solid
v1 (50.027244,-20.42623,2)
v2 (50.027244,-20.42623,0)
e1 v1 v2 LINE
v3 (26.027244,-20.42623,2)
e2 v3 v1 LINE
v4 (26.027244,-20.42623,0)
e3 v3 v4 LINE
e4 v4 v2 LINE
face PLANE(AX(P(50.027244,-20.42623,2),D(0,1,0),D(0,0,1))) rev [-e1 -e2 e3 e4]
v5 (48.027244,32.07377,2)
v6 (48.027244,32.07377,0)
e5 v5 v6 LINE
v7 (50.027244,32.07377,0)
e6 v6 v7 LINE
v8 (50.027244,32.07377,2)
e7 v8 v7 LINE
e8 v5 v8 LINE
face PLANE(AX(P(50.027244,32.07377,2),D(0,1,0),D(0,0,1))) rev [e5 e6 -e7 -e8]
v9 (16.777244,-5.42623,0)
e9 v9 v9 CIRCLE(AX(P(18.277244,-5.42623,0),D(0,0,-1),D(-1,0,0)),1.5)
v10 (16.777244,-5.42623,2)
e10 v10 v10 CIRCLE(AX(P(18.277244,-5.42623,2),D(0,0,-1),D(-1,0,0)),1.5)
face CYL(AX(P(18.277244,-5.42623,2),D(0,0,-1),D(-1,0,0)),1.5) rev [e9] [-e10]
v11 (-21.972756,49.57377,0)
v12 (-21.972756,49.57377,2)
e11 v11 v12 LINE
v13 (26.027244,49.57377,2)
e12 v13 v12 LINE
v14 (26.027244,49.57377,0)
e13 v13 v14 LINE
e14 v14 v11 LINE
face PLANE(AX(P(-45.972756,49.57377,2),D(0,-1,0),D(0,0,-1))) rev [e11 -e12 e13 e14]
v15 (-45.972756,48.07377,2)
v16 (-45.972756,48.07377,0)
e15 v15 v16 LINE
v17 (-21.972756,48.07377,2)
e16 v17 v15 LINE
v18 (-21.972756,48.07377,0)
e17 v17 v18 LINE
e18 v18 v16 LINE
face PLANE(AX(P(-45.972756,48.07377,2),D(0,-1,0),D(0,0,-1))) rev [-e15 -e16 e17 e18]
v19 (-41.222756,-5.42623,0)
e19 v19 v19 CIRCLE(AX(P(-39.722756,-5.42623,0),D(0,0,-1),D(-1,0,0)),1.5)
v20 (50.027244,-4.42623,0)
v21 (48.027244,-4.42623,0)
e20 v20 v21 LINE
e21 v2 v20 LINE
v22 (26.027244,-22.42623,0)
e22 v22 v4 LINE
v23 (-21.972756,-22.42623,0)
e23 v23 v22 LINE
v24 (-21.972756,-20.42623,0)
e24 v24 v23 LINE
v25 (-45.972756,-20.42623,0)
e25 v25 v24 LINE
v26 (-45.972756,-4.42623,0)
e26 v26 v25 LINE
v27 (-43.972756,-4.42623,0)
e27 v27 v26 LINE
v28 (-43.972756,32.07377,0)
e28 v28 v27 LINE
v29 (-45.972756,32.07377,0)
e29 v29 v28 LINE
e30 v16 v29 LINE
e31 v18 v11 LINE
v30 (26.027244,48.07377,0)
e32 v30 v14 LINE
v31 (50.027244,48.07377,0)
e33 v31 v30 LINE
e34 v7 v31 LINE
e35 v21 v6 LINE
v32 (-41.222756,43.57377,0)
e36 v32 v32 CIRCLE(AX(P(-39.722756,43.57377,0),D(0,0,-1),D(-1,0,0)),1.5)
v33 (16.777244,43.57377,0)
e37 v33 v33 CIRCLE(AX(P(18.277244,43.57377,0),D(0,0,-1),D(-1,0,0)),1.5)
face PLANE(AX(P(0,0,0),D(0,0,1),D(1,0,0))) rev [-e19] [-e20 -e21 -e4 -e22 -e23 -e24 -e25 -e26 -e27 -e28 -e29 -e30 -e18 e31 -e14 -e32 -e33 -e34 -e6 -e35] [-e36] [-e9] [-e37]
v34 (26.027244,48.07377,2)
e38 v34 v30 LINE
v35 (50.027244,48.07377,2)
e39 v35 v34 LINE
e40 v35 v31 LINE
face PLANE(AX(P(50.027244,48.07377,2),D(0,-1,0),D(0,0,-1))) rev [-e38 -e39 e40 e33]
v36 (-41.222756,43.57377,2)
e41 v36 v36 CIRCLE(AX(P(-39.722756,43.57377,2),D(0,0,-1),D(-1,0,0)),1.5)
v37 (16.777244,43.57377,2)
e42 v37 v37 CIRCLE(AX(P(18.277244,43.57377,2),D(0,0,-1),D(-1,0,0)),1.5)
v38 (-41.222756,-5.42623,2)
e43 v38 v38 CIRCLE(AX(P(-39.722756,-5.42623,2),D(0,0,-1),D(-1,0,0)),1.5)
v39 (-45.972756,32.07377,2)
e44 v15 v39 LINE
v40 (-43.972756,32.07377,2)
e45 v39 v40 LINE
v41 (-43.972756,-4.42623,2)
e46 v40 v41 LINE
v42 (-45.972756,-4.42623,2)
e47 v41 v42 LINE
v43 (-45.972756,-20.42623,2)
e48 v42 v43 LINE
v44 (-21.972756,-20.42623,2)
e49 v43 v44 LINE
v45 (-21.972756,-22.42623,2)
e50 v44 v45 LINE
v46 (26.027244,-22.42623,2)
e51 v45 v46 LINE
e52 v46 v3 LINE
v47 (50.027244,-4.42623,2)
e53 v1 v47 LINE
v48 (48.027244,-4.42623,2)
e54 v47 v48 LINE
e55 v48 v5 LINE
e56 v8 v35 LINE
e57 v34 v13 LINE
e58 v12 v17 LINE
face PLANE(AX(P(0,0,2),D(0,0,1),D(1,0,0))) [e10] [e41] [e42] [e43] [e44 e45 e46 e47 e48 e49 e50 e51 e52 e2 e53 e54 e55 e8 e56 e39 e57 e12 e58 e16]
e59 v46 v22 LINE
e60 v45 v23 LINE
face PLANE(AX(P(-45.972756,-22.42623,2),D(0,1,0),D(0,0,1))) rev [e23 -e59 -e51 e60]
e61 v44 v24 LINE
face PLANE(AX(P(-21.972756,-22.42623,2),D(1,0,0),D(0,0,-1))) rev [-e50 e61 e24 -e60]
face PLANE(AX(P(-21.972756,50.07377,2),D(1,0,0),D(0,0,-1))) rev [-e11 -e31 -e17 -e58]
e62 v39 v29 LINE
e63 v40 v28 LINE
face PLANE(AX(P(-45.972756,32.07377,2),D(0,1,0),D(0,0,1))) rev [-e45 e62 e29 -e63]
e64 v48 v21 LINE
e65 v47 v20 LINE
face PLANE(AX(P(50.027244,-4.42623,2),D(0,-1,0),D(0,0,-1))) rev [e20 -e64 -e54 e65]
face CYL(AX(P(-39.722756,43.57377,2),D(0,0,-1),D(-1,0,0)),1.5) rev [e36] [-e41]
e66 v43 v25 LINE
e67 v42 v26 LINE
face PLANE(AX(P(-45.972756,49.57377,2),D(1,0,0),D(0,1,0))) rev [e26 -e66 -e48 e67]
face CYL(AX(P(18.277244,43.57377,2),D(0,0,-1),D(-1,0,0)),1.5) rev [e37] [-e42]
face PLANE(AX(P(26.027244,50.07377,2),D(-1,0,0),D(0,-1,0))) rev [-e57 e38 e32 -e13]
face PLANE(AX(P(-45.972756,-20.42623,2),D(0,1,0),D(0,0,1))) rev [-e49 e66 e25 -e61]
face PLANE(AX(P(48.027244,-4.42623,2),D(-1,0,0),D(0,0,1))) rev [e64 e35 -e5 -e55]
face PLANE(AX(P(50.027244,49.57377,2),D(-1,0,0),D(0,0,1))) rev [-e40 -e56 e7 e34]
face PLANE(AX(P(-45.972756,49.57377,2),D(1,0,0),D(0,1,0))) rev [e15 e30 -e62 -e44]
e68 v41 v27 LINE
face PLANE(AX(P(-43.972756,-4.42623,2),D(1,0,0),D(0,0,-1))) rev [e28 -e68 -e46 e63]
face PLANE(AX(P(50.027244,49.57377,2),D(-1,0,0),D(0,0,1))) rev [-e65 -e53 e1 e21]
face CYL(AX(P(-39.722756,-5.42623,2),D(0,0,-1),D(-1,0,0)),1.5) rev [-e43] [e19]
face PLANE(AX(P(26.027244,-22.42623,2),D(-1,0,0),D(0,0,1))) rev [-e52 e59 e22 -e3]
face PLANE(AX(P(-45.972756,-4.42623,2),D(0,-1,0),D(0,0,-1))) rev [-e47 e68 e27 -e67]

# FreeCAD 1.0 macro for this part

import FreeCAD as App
import Part
import Sketcher
Q = App.Units.Quantity

doc = App.newDocument("Part")
body = doc.addObject("PartDesign::Body", "Body")

# Sketch on XY plane
sketch1 = body.newObject("Sketcher::SketchObject", "Sketch")
sketch1.AttachmentSupport = (doc.getObject("XY_Plane"), [""])
sketch1.MapMode = "FlatFace"
sketch1.addGeometry([
    Part.LineSegment(App.Vector(-46, 50, 0), App.Vector(-46, -22, 0)),
    Part.LineSegment(App.Vector(-46, -22, 0), App.Vector(50, -22, 0)),
    Part.LineSegment(App.Vector(50, -22, 0), App.Vector(50, 50, 0)),
    Part.LineSegment(App.Vector(50, 50, 0), App.Vector(-46, 50, 0)),
], False)
sketch1.addConstraint([
    Sketcher.Constraint("Coincident", 0, 2, 1, 1),
    Sketcher.Constraint("Coincident", 1, 2, 2, 1),
    Sketcher.Constraint("Coincident", 2, 2, 3, 1),
    Sketcher.Constraint("Coincident", 3, 2, 0, 1),
    Sketcher.Constraint("Vertical", 0),
    Sketcher.Constraint("Horizontal", 1),
    Sketcher.Constraint("Vertical", 2),
    Sketcher.Constraint("Horizontal", 3),
    Sketcher.Constraint("DistanceX", 1, 1, 1, 2, Q("96 mm")),
    Sketcher.Constraint("DistanceY", 0, 2, 0, 1, Q("72 mm")),
    Sketcher.Constraint("DistanceY", 0, 2, -1, 1, Q("22.42623 mm")),
    Sketcher.Constraint("DistanceX", 0, 2, -1, 1, Q("45.972756 mm")),
])
pad1 = body.newObject("PartDesign::Pad", "Pad")
pad1.Profile = sketch1
pad1.Length = 2

# Sketch on XY plane
sketch2 = body.newObject("Sketcher::SketchObject", "Sketch001")
sketch2.AttachmentSupport = (doc.getObject("XY_Plane"), [""])
sketch2.MapMode = "FlatFace"
sketch2.addGeometry([
    Part.Circle(App.Vector(18.3, -5.4, 0), App.Vector(0, 0, 1), 1.5),
    Part.Circle(App.Vector(18.3, 43.6, 0), App.Vector(0, 0, 1), 1.5),
    Part.Circle(App.Vector(-39.7, -5.4, 0), App.Vector(0, 0, 1), 1.5),
    Part.Circle(App.Vector(-39.7, 43.6, 0), App.Vector(0, 0, 1), 1.5),
], False)
sketch2.addConstraint([
    Sketcher.Constraint("Equal", 0, 1),
    Sketcher.Constraint("Equal", 1, 2),
    Sketcher.Constraint("Equal", 2, 3),
    Sketcher.Constraint("Horizontal", 0, 3, 2, 3),
    Sketcher.Constraint("Horizontal", 1, 3, 3, 3),
    Sketcher.Constraint("Vertical", 0, 3, 1, 3),
    Sketcher.Constraint("Vertical", 2, 3, 3, 3),
    Sketcher.Constraint("Diameter", 0, Q("3 mm")),
    Sketcher.Constraint("DistanceY", 0, 3, 1, 3, Q("49 mm")),
    Sketcher.Constraint("DistanceX", 2, 3, 0, 3, Q("58 mm")),
    Sketcher.Constraint("DistanceY", 0, 3, -1, 1, Q("5.42623 mm")),
    Sketcher.Constraint("DistanceX", -1, 1, 0, 3, Q("18.277244 mm")),
])
pocket1 = body.newObject("PartDesign::Pocket", "Pocket")
pocket1.Profile = sketch2
pocket1.Type = "ThroughAll"
pocket1.Reversed = True

# Sketch on XY plane
sketch3 = body.newObject("Sketcher::SketchObject", "Sketch002")
sketch3.AttachmentSupport = (doc.getObject("XY_Plane"), [""])
sketch3.MapMode = "FlatFace"
sketch3.addGeometry([
    Part.LineSegment(App.Vector(-22, -20.4, 0), App.Vector(-22, -22.4, 0)),  # 0
    Part.LineSegment(App.Vector(-22, -22.4, 0), App.Vector(-46, -22.4, 0)),  # 1
    Part.LineSegment(App.Vector(-46, -22.4, 0), App.Vector(-46, -20.4, 0)),  # 2
    Part.LineSegment(App.Vector(-46, -20.4, 0), App.Vector(-22, -20.4, 0)),  # 3
    Part.LineSegment(App.Vector(50, -20.4, 0), App.Vector(50, -22.4, 0)),  # 4
    Part.LineSegment(App.Vector(50, -22.4, 0), App.Vector(26, -22.4, 0)),  # 5
    Part.LineSegment(App.Vector(26, -22.4, 0), App.Vector(26, -20.4, 0)),  # 6
    Part.LineSegment(App.Vector(26, -20.4, 0), App.Vector(50, -20.4, 0)),  # 7
], False)
sketch3.addConstraint([
    Sketcher.Constraint("Coincident", 0, 2, 1, 1),
    Sketcher.Constraint("Coincident", 1, 2, 2, 1),
    Sketcher.Constraint("Coincident", 2, 2, 3, 1),
    Sketcher.Constraint("Coincident", 3, 2, 0, 1),
    Sketcher.Constraint("Coincident", 4, 2, 5, 1),
    Sketcher.Constraint("Coincident", 5, 2, 6, 1),
    Sketcher.Constraint("Coincident", 6, 2, 7, 1),
    Sketcher.Constraint("Coincident", 7, 2, 4, 1),
    Sketcher.Constraint("Vertical", 0),
    Sketcher.Constraint("Horizontal", 1),
    Sketcher.Constraint("Vertical", 2),
    Sketcher.Constraint("Horizontal", 3),
    Sketcher.Constraint("Vertical", 4),
    Sketcher.Constraint("Horizontal", 5),
    Sketcher.Constraint("Vertical", 6),
    Sketcher.Constraint("Horizontal", 7),
    Sketcher.Constraint("Horizontal", 1, 2, 4, 2),
    Sketcher.Constraint("Horizontal", 3, 2, 6, 2),
    Sketcher.Constraint("Equal", 3, 5),
    Sketcher.Constraint("DistanceX", 1, 2, 1, 1, Q("24 mm")),
    Sketcher.Constraint("DistanceY", 0, 2, 0, 1, Q("2 mm")),
    Sketcher.Constraint("DistanceX", 0, 2, 4, 2, Q("72 mm")),
    Sketcher.Constraint("DistanceY", 0, 2, -1, 1, Q("22.42623 mm")),
    Sketcher.Constraint("DistanceX", 0, 2, -1, 1, Q("21.972756 mm")),
])
pocket2 = body.newObject("PartDesign::Pocket", "Pocket001")
pocket2.Profile = sketch3
pocket2.Type = "ThroughAll"
pocket2.Reversed = True

# Sketch on XY plane
sketch4 = body.newObject("Sketcher::SketchObject", "Sketch003")
sketch4.AttachmentSupport = (doc.getObject("XY_Plane"), [""])
sketch4.MapMode = "FlatFace"
sketch4.addGeometry([
    Part.LineSegment(App.Vector(-22, 50.1, 0), App.Vector(-22, 48.1, 0)),  # 0
    Part.LineSegment(App.Vector(-22, 48.1, 0), App.Vector(-46, 48.1, 0)),  # 1
    Part.LineSegment(App.Vector(-46, 48.1, 0), App.Vector(-46, 50.1, 0)),  # 2
    Part.LineSegment(App.Vector(-46, 50.1, 0), App.Vector(-22, 50.1, 0)),  # 3
    Part.LineSegment(App.Vector(50, 50.1, 0), App.Vector(50, 48.1, 0)),  # 4
    Part.LineSegment(App.Vector(50, 48.1, 0), App.Vector(26, 48.1, 0)),  # 5
    Part.LineSegment(App.Vector(26, 48.1, 0), App.Vector(26, 50.1, 0)),  # 6
    Part.LineSegment(App.Vector(26, 50.1, 0), App.Vector(50, 50.1, 0)),  # 7
], False)
sketch4.addConstraint([
    Sketcher.Constraint("Coincident", 0, 2, 1, 1),
    Sketcher.Constraint("Coincident", 1, 2, 2, 1),
    Sketcher.Constraint("Coincident", 2, 2, 3, 1),
    Sketcher.Constraint("Coincident", 3, 2, 0, 1),
    Sketcher.Constraint("Coincident", 4, 2, 5, 1),
    Sketcher.Constraint("Coincident", 5, 2, 6, 1),
    Sketcher.Constraint("Coincident", 6, 2, 7, 1),
    Sketcher.Constraint("Coincident", 7, 2, 4, 1),
    Sketcher.Constraint("Vertical", 0),
    Sketcher.Constraint("Horizontal", 1),
    Sketcher.Constraint("Vertical", 2),
    Sketcher.Constraint("Horizontal", 3),
    Sketcher.Constraint("Vertical", 4),
    Sketcher.Constraint("Horizontal", 5),
    Sketcher.Constraint("Vertical", 6),
    Sketcher.Constraint("Horizontal", 7),
    Sketcher.Constraint("Horizontal", 1, 2, 4, 2),
    Sketcher.Constraint("Horizontal", 3, 2, 6, 2),
    Sketcher.Constraint("Equal", 3, 5),
    Sketcher.Constraint("DistanceX", 1, 2, 1, 1, Q("24 mm")),
    Sketcher.Constraint("DistanceY", 0, 2, 0, 1, Q("2 mm")),
    Sketcher.Constraint("DistanceX", 0, 2, 4, 2, Q("72 mm")),
    Sketcher.Constraint("DistanceY", -1, 1, 0, 2, Q("48.07377 mm")),
    Sketcher.Constraint("DistanceX", 0, 2, -1, 1, Q("21.972756 mm")),
])
pocket3 = body.newObject("PartDesign::Pocket", "Pocket002")
pocket3.Profile = sketch4
pocket3.Type = "ThroughAll"
pocket3.Reversed = True

# Sketch on XY plane
sketch5 = body.newObject("Sketcher::SketchObject", "Sketch004")
sketch5.AttachmentSupport = (doc.getObject("XY_Plane"), [""])
sketch5.MapMode = "FlatFace"
sketch5.addGeometry([
    Part.LineSegment(App.Vector(-44, 32.1, 0), App.Vector(-44, -4.4, 0)),
    Part.LineSegment(App.Vector(-44, -4.4, 0), App.Vector(-46, -4.4, 0)),
    Part.LineSegment(App.Vector(-46, -4.4, 0), App.Vector(-46, 32.1, 0)),
    Part.LineSegment(App.Vector(-46, 32.1, 0), App.Vector(-44, 32.1, 0)),
], False)
sketch5.addConstraint([
    Sketcher.Constraint("Coincident", 0, 2, 1, 1),
    Sketcher.Constraint("Coincident", 1, 2, 2, 1),
    Sketcher.Constraint("Coincident", 2, 2, 3, 1),
    Sketcher.Constraint("Coincident", 3, 2, 0, 1),
    Sketcher.Constraint("Vertical", 0),
    Sketcher.Constraint("Horizontal", 1),
    Sketcher.Constraint("Vertical", 2),
    Sketcher.Constraint("Horizontal", 3),
    Sketcher.Constraint("DistanceX", 1, 2, 1, 1, Q("2 mm")),
    Sketcher.Constraint("DistanceY", 0, 2, 0, 1, Q("36.5 mm")),
    Sketcher.Constraint("DistanceY", 0, 2, -1, 1, Q("4.42623 mm")),
    Sketcher.Constraint("DistanceX", 0, 2, -1, 1, Q("43.972756 mm")),
])
pocket4 = body.newObject("PartDesign::Pocket", "Pocket003")
pocket4.Profile = sketch5
pocket4.Type = "ThroughAll"
pocket4.Reversed = True

# Sketch on XY plane
sketch6 = body.newObject("Sketcher::SketchObject", "Sketch005")
sketch6.AttachmentSupport = (doc.getObject("XY_Plane"), [""])
sketch6.MapMode = "FlatFace"
sketch6.addGeometry([
    Part.LineSegment(App.Vector(50, 32.1, 0), App.Vector(50, -4.4, 0)),
    Part.LineSegment(App.Vector(50, -4.4, 0), App.Vector(48, -4.4, 0)),
    Part.LineSegment(App.Vector(48, -4.4, 0), App.Vector(48, 32.1, 0)),
    Part.LineSegment(App.Vector(48, 32.1, 0), App.Vector(50, 32.1, 0)),
], False)
sketch6.addConstraint([
    Sketcher.Constraint("Coincident", 0, 2, 1, 1),
    Sketcher.Constraint("Coincident", 1, 2, 2, 1),
    Sketcher.Constraint("Coincident", 2, 2, 3, 1),
    Sketcher.Constraint("Coincident", 3, 2, 0, 1),
    Sketcher.Constraint("Vertical", 0),
    Sketcher.Constraint("Horizontal", 1),
    Sketcher.Constraint("Vertical", 2),
    Sketcher.Constraint("Horizontal", 3),
    Sketcher.Constraint("DistanceX", 1, 2, 1, 1, Q("2 mm")),
    Sketcher.Constraint("DistanceY", 0, 2, 0, 1, Q("36.5 mm")),
    Sketcher.Constraint("DistanceY", 0, 2, -1, 1, Q("4.42623 mm")),
    Sketcher.Constraint("DistanceX", -1, 1, 0, 2, Q("50.027244 mm")),
])
pocket5 = body.newObject("PartDesign::Pocket", "Pocket004")
pocket5.Profile = sketch6
pocket5.Type = "ThroughAll"
pocket5.Reversed = True

doc.recompute()
